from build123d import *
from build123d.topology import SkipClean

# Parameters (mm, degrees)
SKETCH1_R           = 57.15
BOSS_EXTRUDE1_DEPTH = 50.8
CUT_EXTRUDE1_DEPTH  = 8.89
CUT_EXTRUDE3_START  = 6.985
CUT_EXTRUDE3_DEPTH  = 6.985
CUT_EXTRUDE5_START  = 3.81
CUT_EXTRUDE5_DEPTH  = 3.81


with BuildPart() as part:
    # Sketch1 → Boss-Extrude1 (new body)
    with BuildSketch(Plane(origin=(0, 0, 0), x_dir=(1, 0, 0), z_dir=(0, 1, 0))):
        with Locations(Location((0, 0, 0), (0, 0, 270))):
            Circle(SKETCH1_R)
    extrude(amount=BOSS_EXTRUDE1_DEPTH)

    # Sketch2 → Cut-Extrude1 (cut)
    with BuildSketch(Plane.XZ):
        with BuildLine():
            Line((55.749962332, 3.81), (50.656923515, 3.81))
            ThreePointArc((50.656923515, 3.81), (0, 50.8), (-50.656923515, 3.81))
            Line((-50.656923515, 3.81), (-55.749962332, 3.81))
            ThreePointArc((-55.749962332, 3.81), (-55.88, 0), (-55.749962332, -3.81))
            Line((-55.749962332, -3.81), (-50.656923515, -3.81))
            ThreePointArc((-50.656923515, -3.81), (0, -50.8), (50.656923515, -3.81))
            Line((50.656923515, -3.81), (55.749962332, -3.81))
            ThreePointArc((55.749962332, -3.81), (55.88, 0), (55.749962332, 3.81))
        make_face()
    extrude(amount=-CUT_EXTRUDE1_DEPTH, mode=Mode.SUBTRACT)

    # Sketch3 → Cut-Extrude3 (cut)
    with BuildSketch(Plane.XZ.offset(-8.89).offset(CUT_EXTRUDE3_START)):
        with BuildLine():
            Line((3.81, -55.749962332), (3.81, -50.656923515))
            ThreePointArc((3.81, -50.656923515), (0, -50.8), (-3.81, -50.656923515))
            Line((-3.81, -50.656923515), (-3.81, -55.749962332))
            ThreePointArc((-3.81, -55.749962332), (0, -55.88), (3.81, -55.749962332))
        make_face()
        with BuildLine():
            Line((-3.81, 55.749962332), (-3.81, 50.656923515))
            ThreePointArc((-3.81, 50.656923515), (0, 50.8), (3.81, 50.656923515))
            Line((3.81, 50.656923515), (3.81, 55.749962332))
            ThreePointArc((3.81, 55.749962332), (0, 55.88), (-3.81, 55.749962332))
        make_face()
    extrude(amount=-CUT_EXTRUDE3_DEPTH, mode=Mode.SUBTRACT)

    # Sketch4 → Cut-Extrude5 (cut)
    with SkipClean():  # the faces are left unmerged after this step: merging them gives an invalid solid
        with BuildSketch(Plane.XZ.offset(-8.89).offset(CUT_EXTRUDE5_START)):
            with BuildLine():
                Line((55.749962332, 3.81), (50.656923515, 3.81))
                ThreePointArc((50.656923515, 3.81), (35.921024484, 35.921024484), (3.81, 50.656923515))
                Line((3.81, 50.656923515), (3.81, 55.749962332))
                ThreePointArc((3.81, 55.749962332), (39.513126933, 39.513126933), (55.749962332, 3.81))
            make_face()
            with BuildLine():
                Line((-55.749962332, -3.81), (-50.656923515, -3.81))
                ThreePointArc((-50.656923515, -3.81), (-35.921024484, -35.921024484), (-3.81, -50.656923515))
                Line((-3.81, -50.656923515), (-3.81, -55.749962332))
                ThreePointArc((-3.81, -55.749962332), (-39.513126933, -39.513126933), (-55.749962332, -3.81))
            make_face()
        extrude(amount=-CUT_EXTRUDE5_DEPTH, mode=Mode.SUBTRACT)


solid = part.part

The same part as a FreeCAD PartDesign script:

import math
import FreeCAD as App
import Part
import Sketcher
Q = App.Units.Quantity

doc = App.newDocument("Part")
params = doc.addObject("Spreadsheet::Sheet", "Params")
for row, (alias, value) in enumerate([
    ("sketch1_diameter", "4.5 in"),
    ("pad1_length", "2 in"),
    ("sketch2_radius", "2 in"),
    ("sketch2_radius2", "2.2 in"),
    ("pocket1_length", "0.35 in"),
    ("sketch3_radius", "2 in"),
    ("sketch3_radius2", "2.2 in"),
    ("pocket2_length", "0.275 in"),
    ("sketch4_radius", "2 in"),
    ("sketch4_radius2", "2.2 in"),
    ("pocket3_length", "0.15 in"),
], start=1):
    params.set(f"A{row}", alias)
    params.set(f"B{row}", "=" + value)
    params.setAlias(f"B{row}", alias)

body = doc.addObject("PartDesign::Body", "Body")

# Sketch on XZ plane
sketch1 = doc.addObject("Sketcher::SketchObject", "Sketch")
body.addObject(sketch1)
sketch1.AttachmentSupport = (doc.XZ_Plane, [""])
sketch1.MapMode = "FlatFace"
sketch1.addGeometry(Part.Circle(App.Vector(0, 0, 0), App.Vector(0, 0, 1), 57), False)
sketch1.addConstraint(Sketcher.Constraint("Coincident", 0, 3, -1, 1))
sketch1.addConstraint(Sketcher.Constraint("Diameter", 0, Q("4.5 in")))
sketch1.setExpression("Constraints[1]", "Params.sketch1_diameter")
pad1 = doc.addObject("PartDesign::Pad", "Pad")
body.addObject(pad1)
pad1.Profile = sketch1
pad1.setExpression("Length", "Params.pad1_length")
pad1.Reversed = True

# Sketch on XZ plane
sketch2 = doc.addObject("Sketcher::SketchObject", "Sketch001")
body.addObject(sketch2)
sketch2.AttachmentSupport = (doc.XZ_Plane, [""])
sketch2.MapMode = "FlatFace"
sketch2.addGeometry(Part.LineSegment(App.Vector(56, 4, 0), App.Vector(51, 4, 0)), False)
sketch2.addGeometry(Part.ArcOfCircle(Part.Circle(App.Vector(0, 0, 0), App.Vector(0, 0, 1), 51), math.radians(4), math.radians(176)), False)
sketch2.addGeometry(Part.LineSegment(App.Vector(-51, 4, 0), App.Vector(-56, 4, 0)), False)
sketch2.addGeometry(Part.ArcOfCircle(Part.Circle(App.Vector(0, 0, 0), App.Vector(0, 0, 1), 56), math.radians(176.09), math.radians(183.91)), False)
sketch2.addGeometry(Part.LineSegment(App.Vector(-56, -4, 0), App.Vector(-51, -4, 0)), False)
sketch2.addGeometry(Part.ArcOfCircle(Part.Circle(App.Vector(0, 0, 0), App.Vector(0, 0, 1), 51), math.radians(-176), math.radians(-4)), False)
sketch2.addGeometry(Part.LineSegment(App.Vector(51, -4, 0), App.Vector(56, -4, 0)), False)
sketch2.addGeometry(Part.ArcOfCircle(Part.Circle(App.Vector(0, 0, 0), App.Vector(0, 0, 1), 56), math.radians(-3.91), math.radians(3.91)), False)
sketch2.addConstraint(Sketcher.Constraint("Coincident", 0, 2, 1, 1))
sketch2.addConstraint(Sketcher.Constraint("Coincident", 1, 2, 2, 1))
sketch2.addConstraint(Sketcher.Constraint("Coincident", 2, 2, 3, 1))
sketch2.addConstraint(Sketcher.Constraint("Coincident", 3, 2, 4, 1))
sketch2.addConstraint(Sketcher.Constraint("Coincident", 4, 2, 5, 1))
sketch2.addConstraint(Sketcher.Constraint("Coincident", 5, 2, 6, 1))
sketch2.addConstraint(Sketcher.Constraint("Coincident", 6, 2, 7, 1))
sketch2.addConstraint(Sketcher.Constraint("Coincident", 7, 2, 0, 1))
sketch2.addConstraint(Sketcher.Constraint("Horizontal", 0))
sketch2.addConstraint(Sketcher.Constraint("Horizontal", 2))
sketch2.addConstraint(Sketcher.Constraint("Horizontal", 4))
sketch2.addConstraint(Sketcher.Constraint("Horizontal", 6))
sketch2.addConstraint(Sketcher.Constraint("Coincident", 1, 3, -1, 1))
sketch2.addConstraint(Sketcher.Constraint("Coincident", 3, 3, -1, 1))
sketch2.addConstraint(Sketcher.Constraint("Coincident", 5, 3, -1, 1))
sketch2.addConstraint(Sketcher.Constraint("Coincident", 7, 3, -1, 1))
sketch2.addConstraint(Sketcher.Constraint("Equal", 1, 5))
sketch2.addConstraint(Sketcher.Constraint("Equal", 3, 7))
sketch2.addConstraint(Sketcher.Constraint("Horizontal", 0, 2, 1, 2))
sketch2.addConstraint(Sketcher.Constraint("Horizontal", 4, 2, 5, 2))
sketch2.addConstraint(Sketcher.Constraint("Vertical", 2, 2, 3, 2))
sketch2.addConstraint(Sketcher.Constraint("Radius", 1, Q("2 in")))
sketch2.addConstraint(Sketcher.Constraint("Radius", 3, Q("2.2 in")))
sketch2.addConstraint(Sketcher.Constraint("DistanceY", 3, 2, 2, 2, Q("0.3 in")))
sketch2.setExpression("Constraints[21]", "Params.sketch2_radius")
sketch2.setExpression("Constraints[22]", "Params.sketch2_radius2")
pocket1 = doc.addObject("PartDesign::Pocket", "Pocket")
body.addObject(pocket1)
pocket1.Profile = sketch2
pocket1.setExpression("Length", "Params.pocket1_length")

# Sketch on XZ plane
sketch3 = doc.addObject("Sketcher::SketchObject", "Sketch002")
body.addObject(sketch3)
sketch3.AttachmentSupport = (doc.XZ_Plane, [""])
sketch3.MapMode = "FlatFace"
sketch3.AttachmentOffset = App.Placement(App.Vector(0, 0, -0.075 * 25.4), App.Rotation())
sketch3.addGeometry(Part.LineSegment(App.Vector(4, -56, 0), App.Vector(4, -51, 0)), False)
sketch3.addGeometry(Part.ArcOfCircle(Part.Circle(App.Vector(0, 0, 0), App.Vector(0, 0, 1), 51), math.radians(-94.3), math.radians(-85.7)), False)
sketch3.addGeometry(Part.LineSegment(App.Vector(-4, -51, 0), App.Vector(-4, -56, 0)), False)
sketch3.addGeometry(Part.ArcOfCircle(Part.Circle(App.Vector(0, 0, 0), App.Vector(0, 0, 1), 56), math.radians(-93.91), math.radians(-86.09)), False)
sketch3.addGeometry(Part.LineSegment(App.Vector(-4, 56, 0), App.Vector(-4, 51, 0)), False)
sketch3.addGeometry(Part.ArcOfCircle(Part.Circle(App.Vector(0, 0, 0), App.Vector(0, 0, 1), 51), math.radians(85.7), math.radians(94.3)), False)
sketch3.addGeometry(Part.LineSegment(App.Vector(4, 51, 0), App.Vector(4, 56, 0)), False)
sketch3.addGeometry(Part.ArcOfCircle(Part.Circle(App.Vector(0, 0, 0), App.Vector(0, 0, 1), 56), math.radians(86.09), math.radians(93.91)), False)
sketch3.addConstraint(Sketcher.Constraint("Coincident", 0, 2, 1, 2))
sketch3.addConstraint(Sketcher.Constraint("Coincident", 1, 1, 2, 1))
sketch3.addConstraint(Sketcher.Constraint("Coincident", 2, 2, 3, 1))
sketch3.addConstraint(Sketcher.Constraint("Coincident", 3, 2, 0, 1))
sketch3.addConstraint(Sketcher.Constraint("Coincident", 4, 2, 5, 2))
sketch3.addConstraint(Sketcher.Constraint("Coincident", 5, 1, 6, 1))
sketch3.addConstraint(Sketcher.Constraint("Coincident", 6, 2, 7, 1))
sketch3.addConstraint(Sketcher.Constraint("Coincident", 7, 2, 4, 1))
sketch3.addConstraint(Sketcher.Constraint("Vertical", 0))
sketch3.addConstraint(Sketcher.Constraint("Vertical", 2))
sketch3.addConstraint(Sketcher.Constraint("Vertical", 4))
sketch3.addConstraint(Sketcher.Constraint("Vertical", 6))
sketch3.addConstraint(Sketcher.Constraint("Coincident", 1, 3, -1, 1))
sketch3.addConstraint(Sketcher.Constraint("Coincident", 3, 3, -1, 1))
sketch3.addConstraint(Sketcher.Constraint("Coincident", 5, 3, -1, 1))
sketch3.addConstraint(Sketcher.Constraint("Coincident", 7, 3, -1, 1))
sketch3.addConstraint(Sketcher.Constraint("Equal", 1, 5))
sketch3.addConstraint(Sketcher.Constraint("Equal", 3, 7))
sketch3.addConstraint(Sketcher.Constraint("Horizontal", 0, 2, 1, 1))
sketch3.addConstraint(Sketcher.Constraint("Horizontal", 4, 2, 5, 1))
sketch3.addConstraint(Sketcher.Constraint("Vertical", 2, 2, 4, 2))
sketch3.addConstraint(Sketcher.Constraint("Radius", 1, Q("2 in")))
sketch3.addConstraint(Sketcher.Constraint("Radius", 3, Q("2.2 in")))
sketch3.addConstraint(Sketcher.Constraint("DistanceX", 1, 1, 0, 2, Q("0.3 in")))
sketch3.setExpression("Constraints[21]", "Params.sketch3_radius")
sketch3.setExpression("Constraints[22]", "Params.sketch3_radius2")
pocket2 = doc.addObject("PartDesign::Pocket", "Pocket001")
body.addObject(pocket2)
pocket2.Profile = sketch3
pocket2.setExpression("Length", "Params.pocket2_length")

# Sketch on XZ plane
sketch4 = doc.addObject("Sketcher::SketchObject", "Sketch003")
body.addObject(sketch4)
sketch4.AttachmentSupport = (doc.XZ_Plane, [""])
sketch4.MapMode = "FlatFace"
sketch4.AttachmentOffset = App.Placement(App.Vector(0, 0, -0.2 * 25.4), App.Rotation())
sketch4.addGeometry(Part.LineSegment(App.Vector(51, 4, 0), App.Vector(56, 4, 0)), False)
sketch4.addGeometry(Part.ArcOfCircle(Part.Circle(App.Vector(0, 0, 0), App.Vector(0, 0, 1), 56), math.radians(4), math.radians(86)), False)
sketch4.addGeometry(Part.LineSegment(App.Vector(4, 56, 0), App.Vector(4, 51, 0)), False)
sketch4.addGeometry(Part.ArcOfCircle(Part.Circle(App.Vector(0, 0, 0), App.Vector(0, 0, 1), 51), math.radians(4), math.radians(86)), False)
sketch4.addGeometry(Part.LineSegment(App.Vector(-51, -4, 0), App.Vector(-56, -4, 0)), False)
sketch4.addGeometry(Part.ArcOfCircle(Part.Circle(App.Vector(0, 0, 0), App.Vector(0, 0, 1), 56), math.radians(-176), math.radians(-94)), False)
sketch4.addGeometry(Part.LineSegment(App.Vector(-4, -56, 0), App.Vector(-4, -51, 0)), False)
sketch4.addGeometry(Part.ArcOfCircle(Part.Circle(App.Vector(0, 0, 0), App.Vector(0, 0, 1), 51), math.radians(-176), math.radians(-94)), False)
sketch4.addConstraint(Sketcher.Constraint("Coincident", 0, 2, 1, 1))
sketch4.addConstraint(Sketcher.Constraint("Coincident", 1, 2, 2, 1))
sketch4.addConstraint(Sketcher.Constraint("Coincident", 2, 2, 3, 2))
sketch4.addConstraint(Sketcher.Constraint("Coincident", 3, 1, 0, 1))
sketch4.addConstraint(Sketcher.Constraint("Coincident", 4, 2, 5, 1))
sketch4.addConstraint(Sketcher.Constraint("Coincident", 5, 2, 6, 1))
sketch4.addConstraint(Sketcher.Constraint("Coincident", 6, 2, 7, 2))
sketch4.addConstraint(Sketcher.Constraint("Coincident", 7, 1, 4, 1))
sketch4.addConstraint(Sketcher.Constraint("Horizontal", 0))
sketch4.addConstraint(Sketcher.Constraint("Vertical", 2))
sketch4.addConstraint(Sketcher.Constraint("Horizontal", 4))
sketch4.addConstraint(Sketcher.Constraint("Vertical", 6))
sketch4.addConstraint(Sketcher.Constraint("Coincident", 1, 3, -1, 1))
sketch4.addConstraint(Sketcher.Constraint("Coincident", 3, 3, -1, 1))
sketch4.addConstraint(Sketcher.Constraint("Coincident", 5, 3, -1, 1))
sketch4.addConstraint(Sketcher.Constraint("Coincident", 7, 3, -1, 1))
sketch4.addConstraint(Sketcher.Constraint("Equal", 1, 5))
sketch4.addConstraint(Sketcher.Constraint("Equal", 3, 7))
sketch4.addConstraint(Sketcher.Constraint("Equal", 0, 4))
sketch4.addConstraint(Sketcher.Constraint("Equal", 4, 2))
sketch4.addConstraint(Sketcher.Constraint("Equal", 2, 6))
sketch4.addConstraint(Sketcher.Constraint("Radius", 3, Q("2 in")))
sketch4.addConstraint(Sketcher.Constraint("Radius", 1, Q("2.2 in")))
sketch4.addConstraint(Sketcher.Constraint("DistanceY", -1, 1, 0, 2, Q("0.15 in")))
sketch4.setExpression("Constraints[21]", "Params.sketch4_radius")
sketch4.setExpression("Constraints[22]", "Params.sketch4_radius2")
pocket3 = doc.addObject("PartDesign::Pocket", "Pocket002")
body.addObject(pocket3)
pocket3.Profile = sketch4
pocket3.setExpression("Length", "Params.pocket3_length")

doc.recompute()
